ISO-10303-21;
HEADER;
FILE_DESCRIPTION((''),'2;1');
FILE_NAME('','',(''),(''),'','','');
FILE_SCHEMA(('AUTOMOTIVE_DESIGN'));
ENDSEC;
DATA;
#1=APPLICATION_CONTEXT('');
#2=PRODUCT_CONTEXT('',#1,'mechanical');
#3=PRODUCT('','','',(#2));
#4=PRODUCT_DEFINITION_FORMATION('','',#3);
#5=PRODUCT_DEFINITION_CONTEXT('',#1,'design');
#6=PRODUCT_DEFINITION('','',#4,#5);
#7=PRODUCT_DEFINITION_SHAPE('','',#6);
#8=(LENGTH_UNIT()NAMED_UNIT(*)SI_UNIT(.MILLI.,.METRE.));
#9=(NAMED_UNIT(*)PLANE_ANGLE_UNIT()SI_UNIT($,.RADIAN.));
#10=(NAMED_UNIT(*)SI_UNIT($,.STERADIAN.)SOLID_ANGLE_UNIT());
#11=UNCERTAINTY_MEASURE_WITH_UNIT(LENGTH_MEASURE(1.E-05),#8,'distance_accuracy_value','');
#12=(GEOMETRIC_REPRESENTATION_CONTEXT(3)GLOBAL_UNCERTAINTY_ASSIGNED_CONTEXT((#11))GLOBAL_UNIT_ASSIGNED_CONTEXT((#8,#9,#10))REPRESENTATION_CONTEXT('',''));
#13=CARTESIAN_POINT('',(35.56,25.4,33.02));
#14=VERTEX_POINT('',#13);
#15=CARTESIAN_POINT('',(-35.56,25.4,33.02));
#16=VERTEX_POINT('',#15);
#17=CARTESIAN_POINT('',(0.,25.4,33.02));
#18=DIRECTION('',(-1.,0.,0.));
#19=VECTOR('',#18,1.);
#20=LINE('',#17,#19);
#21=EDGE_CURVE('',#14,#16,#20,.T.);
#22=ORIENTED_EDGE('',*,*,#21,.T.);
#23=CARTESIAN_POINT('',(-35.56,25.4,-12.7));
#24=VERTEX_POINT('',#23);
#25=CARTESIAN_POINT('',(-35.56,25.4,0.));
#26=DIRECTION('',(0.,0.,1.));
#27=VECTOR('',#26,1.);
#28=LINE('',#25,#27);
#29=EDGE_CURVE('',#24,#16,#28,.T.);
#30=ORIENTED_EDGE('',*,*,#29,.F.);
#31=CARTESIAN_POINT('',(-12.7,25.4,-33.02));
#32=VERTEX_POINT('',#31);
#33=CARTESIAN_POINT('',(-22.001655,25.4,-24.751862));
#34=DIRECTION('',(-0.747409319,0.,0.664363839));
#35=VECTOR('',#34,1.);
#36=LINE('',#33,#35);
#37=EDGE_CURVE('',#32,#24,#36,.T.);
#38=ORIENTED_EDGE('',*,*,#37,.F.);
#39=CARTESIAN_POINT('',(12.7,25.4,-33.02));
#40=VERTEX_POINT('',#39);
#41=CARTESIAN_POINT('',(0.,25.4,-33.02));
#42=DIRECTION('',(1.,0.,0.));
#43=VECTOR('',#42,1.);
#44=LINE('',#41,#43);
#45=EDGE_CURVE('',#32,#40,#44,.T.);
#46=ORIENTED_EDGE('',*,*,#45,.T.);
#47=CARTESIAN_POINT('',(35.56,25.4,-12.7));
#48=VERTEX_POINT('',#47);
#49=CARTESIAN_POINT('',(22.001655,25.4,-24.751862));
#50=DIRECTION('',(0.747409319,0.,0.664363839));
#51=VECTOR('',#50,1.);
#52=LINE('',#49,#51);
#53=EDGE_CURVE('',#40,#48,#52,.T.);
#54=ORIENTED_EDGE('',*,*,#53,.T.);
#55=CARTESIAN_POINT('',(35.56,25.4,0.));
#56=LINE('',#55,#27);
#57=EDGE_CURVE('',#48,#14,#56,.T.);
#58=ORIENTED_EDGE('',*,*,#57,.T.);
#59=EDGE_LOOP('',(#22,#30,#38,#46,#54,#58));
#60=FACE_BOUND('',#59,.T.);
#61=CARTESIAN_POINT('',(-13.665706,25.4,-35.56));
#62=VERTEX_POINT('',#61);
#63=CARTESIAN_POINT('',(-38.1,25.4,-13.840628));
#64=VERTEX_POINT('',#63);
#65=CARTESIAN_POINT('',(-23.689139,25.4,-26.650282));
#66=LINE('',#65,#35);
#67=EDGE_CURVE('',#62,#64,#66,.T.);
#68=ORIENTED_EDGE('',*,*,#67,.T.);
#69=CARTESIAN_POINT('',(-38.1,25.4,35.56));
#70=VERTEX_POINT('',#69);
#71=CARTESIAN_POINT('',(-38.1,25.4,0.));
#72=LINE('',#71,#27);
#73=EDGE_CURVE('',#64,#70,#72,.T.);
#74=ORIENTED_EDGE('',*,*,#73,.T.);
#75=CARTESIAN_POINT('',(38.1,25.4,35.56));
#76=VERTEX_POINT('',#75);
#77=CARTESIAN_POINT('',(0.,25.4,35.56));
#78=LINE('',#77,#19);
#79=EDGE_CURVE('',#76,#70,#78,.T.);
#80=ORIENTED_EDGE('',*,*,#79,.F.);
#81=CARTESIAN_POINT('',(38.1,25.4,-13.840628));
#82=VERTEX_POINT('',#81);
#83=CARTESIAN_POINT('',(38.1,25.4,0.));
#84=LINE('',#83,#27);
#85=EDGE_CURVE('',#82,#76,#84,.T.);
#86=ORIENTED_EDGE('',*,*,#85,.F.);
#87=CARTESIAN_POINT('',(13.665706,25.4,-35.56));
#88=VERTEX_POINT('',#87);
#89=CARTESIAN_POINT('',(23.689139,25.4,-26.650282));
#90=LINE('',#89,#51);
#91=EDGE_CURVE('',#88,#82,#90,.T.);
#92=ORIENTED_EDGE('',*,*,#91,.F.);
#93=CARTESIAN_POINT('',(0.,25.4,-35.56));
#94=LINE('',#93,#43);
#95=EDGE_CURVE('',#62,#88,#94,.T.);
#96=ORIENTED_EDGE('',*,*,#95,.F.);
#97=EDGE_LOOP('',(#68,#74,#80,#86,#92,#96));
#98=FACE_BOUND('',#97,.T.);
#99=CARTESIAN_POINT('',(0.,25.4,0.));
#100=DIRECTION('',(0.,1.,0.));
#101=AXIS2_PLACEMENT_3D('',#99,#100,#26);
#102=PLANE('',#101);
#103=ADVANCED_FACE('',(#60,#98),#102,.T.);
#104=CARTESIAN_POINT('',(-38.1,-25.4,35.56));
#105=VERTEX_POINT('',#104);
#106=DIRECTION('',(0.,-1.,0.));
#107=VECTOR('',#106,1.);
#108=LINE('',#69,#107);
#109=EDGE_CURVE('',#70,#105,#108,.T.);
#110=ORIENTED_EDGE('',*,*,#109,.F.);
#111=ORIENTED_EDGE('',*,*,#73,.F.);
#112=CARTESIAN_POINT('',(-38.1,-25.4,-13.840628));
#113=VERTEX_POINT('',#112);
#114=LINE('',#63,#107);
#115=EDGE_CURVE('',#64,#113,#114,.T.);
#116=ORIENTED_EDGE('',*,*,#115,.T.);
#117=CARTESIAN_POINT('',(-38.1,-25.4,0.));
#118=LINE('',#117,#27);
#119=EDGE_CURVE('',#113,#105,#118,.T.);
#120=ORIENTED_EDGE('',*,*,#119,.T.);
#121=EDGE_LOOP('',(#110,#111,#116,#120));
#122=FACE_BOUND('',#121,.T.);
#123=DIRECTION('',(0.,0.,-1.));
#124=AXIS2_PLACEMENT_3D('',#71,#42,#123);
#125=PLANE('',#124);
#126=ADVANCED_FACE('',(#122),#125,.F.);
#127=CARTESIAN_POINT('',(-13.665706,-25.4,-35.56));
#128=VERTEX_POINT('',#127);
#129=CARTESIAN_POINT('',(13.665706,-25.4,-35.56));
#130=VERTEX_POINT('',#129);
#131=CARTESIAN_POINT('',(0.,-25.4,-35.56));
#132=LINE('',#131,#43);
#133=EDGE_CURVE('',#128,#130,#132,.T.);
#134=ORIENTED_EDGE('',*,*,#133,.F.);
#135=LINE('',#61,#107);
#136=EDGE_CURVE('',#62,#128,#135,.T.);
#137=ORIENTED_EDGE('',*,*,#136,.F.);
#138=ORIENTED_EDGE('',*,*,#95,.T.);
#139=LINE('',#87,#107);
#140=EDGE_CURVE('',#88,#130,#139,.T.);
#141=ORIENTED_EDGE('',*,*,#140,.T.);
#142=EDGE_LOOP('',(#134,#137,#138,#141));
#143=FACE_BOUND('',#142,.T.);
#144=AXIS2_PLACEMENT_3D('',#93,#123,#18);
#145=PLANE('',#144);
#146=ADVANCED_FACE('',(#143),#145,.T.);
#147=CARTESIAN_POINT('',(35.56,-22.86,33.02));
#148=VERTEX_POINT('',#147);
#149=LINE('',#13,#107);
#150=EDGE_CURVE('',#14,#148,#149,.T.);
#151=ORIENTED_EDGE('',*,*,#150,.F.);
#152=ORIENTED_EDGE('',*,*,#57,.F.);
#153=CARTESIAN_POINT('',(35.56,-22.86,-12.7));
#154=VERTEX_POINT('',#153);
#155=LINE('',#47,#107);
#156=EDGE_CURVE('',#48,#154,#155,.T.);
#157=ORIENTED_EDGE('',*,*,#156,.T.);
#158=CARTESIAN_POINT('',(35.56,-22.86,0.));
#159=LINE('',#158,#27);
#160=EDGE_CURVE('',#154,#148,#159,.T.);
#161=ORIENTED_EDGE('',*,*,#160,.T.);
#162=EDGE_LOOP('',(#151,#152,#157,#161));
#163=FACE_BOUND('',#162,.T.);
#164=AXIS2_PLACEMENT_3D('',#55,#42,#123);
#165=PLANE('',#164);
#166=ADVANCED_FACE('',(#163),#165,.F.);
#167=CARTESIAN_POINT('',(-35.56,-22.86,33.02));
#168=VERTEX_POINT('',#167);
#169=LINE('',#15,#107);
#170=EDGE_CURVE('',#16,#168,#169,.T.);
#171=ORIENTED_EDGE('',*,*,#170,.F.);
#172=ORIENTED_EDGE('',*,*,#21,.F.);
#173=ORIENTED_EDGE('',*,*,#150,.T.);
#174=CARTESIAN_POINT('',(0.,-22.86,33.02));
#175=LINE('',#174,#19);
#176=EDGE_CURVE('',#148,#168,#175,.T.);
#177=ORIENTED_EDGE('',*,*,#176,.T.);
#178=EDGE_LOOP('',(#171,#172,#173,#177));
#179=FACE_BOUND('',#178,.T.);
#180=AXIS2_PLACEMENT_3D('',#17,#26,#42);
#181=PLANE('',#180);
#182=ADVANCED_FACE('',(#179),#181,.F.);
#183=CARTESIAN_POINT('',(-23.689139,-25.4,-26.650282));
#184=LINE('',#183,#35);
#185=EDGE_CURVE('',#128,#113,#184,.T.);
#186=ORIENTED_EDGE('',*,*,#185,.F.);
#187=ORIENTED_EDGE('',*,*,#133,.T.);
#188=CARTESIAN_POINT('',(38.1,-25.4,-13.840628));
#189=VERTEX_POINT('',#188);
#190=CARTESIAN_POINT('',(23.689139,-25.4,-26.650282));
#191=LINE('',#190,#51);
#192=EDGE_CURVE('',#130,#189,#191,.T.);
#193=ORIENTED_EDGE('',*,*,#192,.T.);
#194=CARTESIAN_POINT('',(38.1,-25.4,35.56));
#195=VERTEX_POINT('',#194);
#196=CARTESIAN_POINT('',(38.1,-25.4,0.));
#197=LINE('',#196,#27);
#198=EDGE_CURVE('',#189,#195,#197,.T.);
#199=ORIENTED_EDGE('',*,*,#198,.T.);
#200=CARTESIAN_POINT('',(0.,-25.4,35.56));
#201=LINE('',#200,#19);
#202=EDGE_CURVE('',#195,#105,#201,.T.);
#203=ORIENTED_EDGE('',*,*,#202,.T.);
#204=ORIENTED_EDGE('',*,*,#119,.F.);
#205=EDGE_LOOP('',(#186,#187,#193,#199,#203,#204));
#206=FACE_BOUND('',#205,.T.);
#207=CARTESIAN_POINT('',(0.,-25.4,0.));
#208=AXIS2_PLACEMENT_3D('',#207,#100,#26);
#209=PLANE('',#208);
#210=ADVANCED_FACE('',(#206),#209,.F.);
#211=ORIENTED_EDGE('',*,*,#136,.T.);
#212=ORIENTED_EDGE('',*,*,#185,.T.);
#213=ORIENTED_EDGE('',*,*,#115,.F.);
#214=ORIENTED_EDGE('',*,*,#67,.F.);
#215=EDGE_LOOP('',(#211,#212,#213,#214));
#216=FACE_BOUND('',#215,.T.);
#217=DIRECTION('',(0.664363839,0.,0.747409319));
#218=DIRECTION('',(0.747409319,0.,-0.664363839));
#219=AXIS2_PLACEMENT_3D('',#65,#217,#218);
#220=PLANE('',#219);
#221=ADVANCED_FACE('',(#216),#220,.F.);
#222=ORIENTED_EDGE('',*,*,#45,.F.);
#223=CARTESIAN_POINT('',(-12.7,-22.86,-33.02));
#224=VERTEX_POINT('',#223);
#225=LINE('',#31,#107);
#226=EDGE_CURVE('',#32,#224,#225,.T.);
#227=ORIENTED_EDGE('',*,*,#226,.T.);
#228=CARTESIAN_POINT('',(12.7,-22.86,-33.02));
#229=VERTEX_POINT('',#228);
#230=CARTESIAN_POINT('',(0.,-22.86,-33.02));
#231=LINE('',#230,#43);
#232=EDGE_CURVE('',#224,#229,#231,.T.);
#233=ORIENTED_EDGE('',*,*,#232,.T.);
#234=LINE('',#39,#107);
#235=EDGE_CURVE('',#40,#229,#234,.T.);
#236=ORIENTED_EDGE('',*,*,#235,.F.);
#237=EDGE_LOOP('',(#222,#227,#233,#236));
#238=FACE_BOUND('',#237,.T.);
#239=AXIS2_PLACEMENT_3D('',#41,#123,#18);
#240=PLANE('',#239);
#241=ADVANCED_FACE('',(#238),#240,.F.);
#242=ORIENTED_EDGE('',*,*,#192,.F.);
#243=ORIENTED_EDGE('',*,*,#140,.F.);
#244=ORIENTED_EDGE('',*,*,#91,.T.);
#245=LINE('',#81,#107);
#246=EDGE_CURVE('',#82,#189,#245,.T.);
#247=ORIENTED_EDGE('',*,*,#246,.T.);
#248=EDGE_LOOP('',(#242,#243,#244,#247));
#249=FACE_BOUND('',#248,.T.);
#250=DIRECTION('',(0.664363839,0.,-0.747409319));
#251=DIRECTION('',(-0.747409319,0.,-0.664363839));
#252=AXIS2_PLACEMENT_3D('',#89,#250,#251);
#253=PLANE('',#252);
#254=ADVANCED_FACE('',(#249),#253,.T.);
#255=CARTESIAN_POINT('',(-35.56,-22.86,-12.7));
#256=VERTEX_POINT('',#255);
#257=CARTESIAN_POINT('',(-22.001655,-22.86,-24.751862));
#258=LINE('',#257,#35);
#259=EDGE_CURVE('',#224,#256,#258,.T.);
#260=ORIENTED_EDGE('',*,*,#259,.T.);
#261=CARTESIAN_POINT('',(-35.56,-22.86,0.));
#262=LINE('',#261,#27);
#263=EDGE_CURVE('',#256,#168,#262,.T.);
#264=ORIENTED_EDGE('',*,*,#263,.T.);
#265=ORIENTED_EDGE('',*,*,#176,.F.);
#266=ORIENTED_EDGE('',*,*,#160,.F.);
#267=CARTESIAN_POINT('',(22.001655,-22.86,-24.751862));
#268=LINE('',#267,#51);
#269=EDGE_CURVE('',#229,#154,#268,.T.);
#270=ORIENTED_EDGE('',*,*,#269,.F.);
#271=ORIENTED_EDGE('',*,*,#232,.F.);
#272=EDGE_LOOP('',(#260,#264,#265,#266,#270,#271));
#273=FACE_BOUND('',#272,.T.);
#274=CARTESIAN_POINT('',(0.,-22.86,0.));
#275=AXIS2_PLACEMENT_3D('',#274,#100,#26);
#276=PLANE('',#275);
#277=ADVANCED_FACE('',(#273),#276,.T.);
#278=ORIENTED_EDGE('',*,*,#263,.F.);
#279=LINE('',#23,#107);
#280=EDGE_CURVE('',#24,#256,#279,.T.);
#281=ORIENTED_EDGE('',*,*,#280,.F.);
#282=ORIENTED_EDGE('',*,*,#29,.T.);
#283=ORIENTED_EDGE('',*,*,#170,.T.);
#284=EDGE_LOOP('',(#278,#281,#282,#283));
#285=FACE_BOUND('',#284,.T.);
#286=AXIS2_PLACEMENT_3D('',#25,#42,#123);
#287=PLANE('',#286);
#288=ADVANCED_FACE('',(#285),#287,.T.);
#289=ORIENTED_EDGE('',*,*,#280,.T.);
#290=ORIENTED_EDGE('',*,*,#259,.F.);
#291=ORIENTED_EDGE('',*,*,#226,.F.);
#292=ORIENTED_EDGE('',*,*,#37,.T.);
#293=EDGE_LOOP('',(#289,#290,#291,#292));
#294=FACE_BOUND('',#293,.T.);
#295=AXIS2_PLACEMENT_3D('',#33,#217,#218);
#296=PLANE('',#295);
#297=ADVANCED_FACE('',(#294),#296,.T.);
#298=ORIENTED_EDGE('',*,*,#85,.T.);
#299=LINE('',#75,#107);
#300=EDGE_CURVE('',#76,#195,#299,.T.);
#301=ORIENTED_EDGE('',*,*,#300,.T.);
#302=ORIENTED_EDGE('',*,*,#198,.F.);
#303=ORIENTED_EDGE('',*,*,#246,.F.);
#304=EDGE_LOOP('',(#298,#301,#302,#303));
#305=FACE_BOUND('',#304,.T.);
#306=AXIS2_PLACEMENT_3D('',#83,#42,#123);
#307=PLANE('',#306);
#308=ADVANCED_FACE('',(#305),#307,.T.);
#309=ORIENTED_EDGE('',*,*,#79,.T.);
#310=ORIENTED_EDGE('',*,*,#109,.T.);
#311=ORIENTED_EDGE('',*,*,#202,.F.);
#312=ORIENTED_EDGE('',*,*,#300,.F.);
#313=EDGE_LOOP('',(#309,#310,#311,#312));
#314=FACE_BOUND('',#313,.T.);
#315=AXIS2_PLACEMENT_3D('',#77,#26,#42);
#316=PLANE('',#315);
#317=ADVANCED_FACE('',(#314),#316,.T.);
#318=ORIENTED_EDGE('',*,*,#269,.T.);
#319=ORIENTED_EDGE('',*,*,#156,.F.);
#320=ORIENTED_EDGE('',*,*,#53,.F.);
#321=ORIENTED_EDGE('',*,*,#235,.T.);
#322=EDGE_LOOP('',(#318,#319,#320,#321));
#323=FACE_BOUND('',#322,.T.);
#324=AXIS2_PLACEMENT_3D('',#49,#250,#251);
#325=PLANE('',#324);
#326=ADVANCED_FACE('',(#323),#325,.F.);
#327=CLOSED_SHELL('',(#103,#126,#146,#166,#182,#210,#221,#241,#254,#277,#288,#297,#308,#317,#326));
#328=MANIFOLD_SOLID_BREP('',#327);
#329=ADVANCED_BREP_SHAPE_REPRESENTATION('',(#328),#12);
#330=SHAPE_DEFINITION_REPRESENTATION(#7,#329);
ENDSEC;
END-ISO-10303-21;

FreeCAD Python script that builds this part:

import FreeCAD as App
import Part
import Sketcher

V = App.Vector
Q = App.Units.Quantity


def faces_at(feature, points):
    """Names of the faces that lie closest to the given points."""
    faces = feature.Shape.Faces
    near = lambda p: min(range(len(faces)), key=lambda i: faces[i].distToShape(Part.Vertex(*p))[0])
    return sorted({f"Face{near(p) + 1}" for p in points})


def add_polygon(sketch, points):
    """Adds a closed chain of lines whose ends are joined by coincident constraints."""
    first, n = sketch.GeometryCount, len(points)
    for a, b in zip(points, points[1:] + points[:1]):
        sketch.addGeometry(Part.LineSegment(App.Vector(*a, 0), App.Vector(*b, 0)), False)
    for i in range(n):
        sketch.addConstraint(Sketcher.Constraint("Coincident", first + i, 2, first + (i + 1) % n, 1))

doc = App.newDocument("Part")
body = doc.addObject("PartDesign::Body", "Body")

# Sketch on XZ plane
sketch1 = body.newObject("Sketcher::SketchObject", "Sketch")
sketch1.AttachmentSupport = (doc.getObject("XZ_Plane"), [""])
sketch1.MapMode = "FlatFace"
add_polygon(sketch1, [(38, -14), (14, -36), (-14, -36), (-38, -14), (-38, 36), (38, 36)])  # lines 0-5
sketch1.addConstraint(Sketcher.Constraint("Horizontal", 1))
sketch1.addConstraint(Sketcher.Constraint("Vertical", 3))
sketch1.addConstraint(Sketcher.Constraint("Horizontal", 4))
sketch1.addConstraint(Sketcher.Constraint("Vertical", 5))
sketch1.addConstraint(Sketcher.Constraint("Symmetric", 2, 2, 5, 2, -2))
sketch1.addConstraint(Sketcher.Constraint("Equal", 0, 2))
sketch1.addConstraint(Sketcher.Constraint("DistanceX", 4, 1, 4, 2, Q("3 in")))
sketch1.addConstraint(Sketcher.Constraint("DistanceY", 0, 2, -1, 1, Q("1.4 in")))
sketch1.addConstraint(Sketcher.Constraint("DistanceY", -1, 1, 3, 2, Q("1.4 in")))
sketch1.addConstraint(Sketcher.Constraint("DistanceX", 1, 2, 1, 1, 27.331413))
sketch1.addConstraint(Sketcher.Constraint("DistanceY", 3, 1, 3, 2, 49.400628))
pad1 = body.newObject("PartDesign::Pad", "Pad")
pad1.Profile = sketch1
pad1.Length = Q("2 in")
pad1.Midplane = True
doc.recompute()

thickness = body.newObject("PartDesign::Thickness", "Thickness")
thickness.Base = (pad1, faces_at(pad1, [(0, 25.4, 0)]))
thickness.Value = Q("0.1 in")
thickness.Reversed = True
thickness.Join = "Intersection"

doc.recompute()
